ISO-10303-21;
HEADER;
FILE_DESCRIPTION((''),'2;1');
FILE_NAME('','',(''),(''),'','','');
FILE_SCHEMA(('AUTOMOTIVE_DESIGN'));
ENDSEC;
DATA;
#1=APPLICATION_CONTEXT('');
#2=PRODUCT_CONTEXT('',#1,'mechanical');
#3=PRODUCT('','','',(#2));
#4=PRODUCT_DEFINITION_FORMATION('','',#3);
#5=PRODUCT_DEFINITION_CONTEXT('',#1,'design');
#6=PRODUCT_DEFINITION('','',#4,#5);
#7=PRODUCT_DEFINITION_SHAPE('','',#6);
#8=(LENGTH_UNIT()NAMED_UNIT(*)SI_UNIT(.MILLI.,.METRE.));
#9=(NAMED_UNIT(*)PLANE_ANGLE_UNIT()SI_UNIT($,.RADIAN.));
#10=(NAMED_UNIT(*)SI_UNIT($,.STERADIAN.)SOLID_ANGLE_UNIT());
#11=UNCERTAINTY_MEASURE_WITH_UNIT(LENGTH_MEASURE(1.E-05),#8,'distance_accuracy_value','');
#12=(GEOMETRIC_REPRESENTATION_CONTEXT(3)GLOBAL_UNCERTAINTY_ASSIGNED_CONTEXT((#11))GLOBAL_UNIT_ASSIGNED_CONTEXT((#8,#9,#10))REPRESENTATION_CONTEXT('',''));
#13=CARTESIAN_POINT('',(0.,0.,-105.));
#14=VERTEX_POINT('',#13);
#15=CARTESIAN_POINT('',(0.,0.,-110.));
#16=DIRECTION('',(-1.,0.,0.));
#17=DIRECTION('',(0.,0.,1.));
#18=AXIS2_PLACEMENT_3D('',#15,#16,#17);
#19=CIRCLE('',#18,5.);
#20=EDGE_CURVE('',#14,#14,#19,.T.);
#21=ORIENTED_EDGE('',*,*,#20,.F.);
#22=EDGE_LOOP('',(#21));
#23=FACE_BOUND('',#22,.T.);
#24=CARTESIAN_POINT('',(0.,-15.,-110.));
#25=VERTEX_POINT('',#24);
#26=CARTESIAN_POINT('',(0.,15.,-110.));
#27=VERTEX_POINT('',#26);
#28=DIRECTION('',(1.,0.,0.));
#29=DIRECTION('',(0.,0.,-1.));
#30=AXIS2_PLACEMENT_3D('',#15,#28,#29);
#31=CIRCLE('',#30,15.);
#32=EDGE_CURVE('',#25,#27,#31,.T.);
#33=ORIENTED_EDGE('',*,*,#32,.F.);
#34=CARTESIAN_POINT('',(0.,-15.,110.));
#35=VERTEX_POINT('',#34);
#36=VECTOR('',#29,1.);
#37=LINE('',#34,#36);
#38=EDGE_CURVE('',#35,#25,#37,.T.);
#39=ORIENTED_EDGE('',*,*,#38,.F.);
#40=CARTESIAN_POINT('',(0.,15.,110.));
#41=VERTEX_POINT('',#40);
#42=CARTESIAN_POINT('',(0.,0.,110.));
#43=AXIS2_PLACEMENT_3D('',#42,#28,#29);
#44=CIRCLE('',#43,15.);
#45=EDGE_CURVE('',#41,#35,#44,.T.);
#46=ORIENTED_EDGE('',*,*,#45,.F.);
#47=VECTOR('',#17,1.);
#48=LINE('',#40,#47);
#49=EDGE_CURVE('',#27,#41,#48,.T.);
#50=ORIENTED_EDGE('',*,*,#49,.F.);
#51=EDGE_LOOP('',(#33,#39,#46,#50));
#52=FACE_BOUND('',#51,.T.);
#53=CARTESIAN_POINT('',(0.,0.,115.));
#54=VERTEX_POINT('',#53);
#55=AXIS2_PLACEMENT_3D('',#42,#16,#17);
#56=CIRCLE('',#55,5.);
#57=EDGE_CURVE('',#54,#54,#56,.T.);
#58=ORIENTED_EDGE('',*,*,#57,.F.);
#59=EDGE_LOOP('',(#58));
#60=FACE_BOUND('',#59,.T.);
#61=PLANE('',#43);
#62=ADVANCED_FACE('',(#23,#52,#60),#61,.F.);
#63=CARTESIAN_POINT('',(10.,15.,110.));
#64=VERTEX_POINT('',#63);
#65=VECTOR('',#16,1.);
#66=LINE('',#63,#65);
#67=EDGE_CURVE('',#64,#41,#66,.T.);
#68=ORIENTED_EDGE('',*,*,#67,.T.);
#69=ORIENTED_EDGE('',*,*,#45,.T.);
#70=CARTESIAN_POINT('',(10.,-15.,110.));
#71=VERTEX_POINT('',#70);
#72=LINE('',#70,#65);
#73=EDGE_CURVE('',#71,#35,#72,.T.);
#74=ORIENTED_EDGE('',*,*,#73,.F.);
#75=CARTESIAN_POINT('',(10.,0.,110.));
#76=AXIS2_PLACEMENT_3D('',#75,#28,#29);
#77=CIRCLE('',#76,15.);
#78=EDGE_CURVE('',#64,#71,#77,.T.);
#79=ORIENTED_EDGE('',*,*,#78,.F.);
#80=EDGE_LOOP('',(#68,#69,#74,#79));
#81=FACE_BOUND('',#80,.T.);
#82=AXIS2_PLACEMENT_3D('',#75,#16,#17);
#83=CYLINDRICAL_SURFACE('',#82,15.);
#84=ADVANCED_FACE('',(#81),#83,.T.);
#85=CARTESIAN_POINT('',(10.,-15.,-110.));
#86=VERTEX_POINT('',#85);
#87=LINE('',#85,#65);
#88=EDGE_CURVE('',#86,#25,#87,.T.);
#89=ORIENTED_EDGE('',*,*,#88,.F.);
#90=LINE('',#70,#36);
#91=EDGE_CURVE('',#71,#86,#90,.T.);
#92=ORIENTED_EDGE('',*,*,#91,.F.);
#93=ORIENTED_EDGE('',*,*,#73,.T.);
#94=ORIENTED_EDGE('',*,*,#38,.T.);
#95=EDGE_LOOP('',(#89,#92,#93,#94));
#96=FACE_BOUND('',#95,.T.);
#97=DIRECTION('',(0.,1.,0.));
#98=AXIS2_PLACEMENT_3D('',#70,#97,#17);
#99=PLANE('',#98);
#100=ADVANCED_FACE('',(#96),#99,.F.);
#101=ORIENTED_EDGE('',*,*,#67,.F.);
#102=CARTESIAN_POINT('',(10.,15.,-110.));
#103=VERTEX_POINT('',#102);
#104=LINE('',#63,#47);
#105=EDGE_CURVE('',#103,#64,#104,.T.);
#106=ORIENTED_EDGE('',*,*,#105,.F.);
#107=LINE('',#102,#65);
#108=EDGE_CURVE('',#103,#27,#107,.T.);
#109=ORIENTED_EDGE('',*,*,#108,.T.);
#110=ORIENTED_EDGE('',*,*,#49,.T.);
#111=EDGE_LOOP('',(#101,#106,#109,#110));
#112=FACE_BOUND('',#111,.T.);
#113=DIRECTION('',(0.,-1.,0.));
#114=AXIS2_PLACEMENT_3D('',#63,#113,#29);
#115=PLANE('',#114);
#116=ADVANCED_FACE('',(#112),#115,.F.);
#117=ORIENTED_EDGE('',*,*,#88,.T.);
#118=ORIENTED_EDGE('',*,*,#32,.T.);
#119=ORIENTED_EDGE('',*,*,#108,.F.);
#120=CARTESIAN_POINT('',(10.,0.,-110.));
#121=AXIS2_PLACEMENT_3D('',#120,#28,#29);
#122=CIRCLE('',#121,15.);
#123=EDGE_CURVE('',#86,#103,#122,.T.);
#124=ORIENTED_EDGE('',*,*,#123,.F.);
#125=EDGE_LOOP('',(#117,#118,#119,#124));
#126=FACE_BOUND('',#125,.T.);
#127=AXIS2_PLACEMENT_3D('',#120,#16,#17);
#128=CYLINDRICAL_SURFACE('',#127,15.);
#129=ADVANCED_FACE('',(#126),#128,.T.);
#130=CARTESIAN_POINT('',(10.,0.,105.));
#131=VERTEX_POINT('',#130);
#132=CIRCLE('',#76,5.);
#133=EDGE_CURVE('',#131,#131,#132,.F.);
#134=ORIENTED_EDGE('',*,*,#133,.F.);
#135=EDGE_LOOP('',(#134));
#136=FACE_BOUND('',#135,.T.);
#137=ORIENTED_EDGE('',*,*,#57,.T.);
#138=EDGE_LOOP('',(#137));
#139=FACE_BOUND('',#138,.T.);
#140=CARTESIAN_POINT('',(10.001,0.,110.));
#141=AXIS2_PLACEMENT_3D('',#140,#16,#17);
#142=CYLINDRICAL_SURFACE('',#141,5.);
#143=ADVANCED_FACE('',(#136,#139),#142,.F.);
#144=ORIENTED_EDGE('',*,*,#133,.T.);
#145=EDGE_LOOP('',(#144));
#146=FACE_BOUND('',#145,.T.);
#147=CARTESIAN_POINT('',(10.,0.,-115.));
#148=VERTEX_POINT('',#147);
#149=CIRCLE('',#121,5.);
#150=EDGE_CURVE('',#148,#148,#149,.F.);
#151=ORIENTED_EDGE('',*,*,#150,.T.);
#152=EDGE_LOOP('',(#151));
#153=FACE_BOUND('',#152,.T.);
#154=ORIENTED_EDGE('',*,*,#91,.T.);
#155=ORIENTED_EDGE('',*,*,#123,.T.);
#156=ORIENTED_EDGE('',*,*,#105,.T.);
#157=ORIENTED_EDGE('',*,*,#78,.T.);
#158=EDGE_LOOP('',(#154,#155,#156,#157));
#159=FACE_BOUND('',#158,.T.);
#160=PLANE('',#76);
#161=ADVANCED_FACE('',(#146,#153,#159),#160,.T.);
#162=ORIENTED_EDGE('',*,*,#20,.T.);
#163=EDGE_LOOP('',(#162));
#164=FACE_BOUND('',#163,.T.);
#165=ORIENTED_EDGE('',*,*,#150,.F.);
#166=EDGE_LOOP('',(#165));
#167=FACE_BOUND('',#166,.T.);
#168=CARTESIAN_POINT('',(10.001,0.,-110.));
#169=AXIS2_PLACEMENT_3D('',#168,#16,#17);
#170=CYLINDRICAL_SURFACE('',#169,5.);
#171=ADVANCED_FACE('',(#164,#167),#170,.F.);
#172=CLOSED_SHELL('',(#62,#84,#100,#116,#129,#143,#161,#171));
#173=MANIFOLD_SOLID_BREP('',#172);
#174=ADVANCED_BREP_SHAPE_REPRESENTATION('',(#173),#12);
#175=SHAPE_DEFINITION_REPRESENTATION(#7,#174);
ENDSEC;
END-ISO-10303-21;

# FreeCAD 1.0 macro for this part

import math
import FreeCAD as App
import Part
import Sketcher
from FreeCAD import Vector

doc = App.newDocument("Part")
body = doc.addObject("PartDesign::Body", "Body")

# Sketch on YZ plane
sketch1 = doc.addObject("Sketcher::SketchObject", "Sketch")
body.addObject(sketch1)
sketch1.AttachmentSupport = (doc.YZ_Plane, [""])
sketch1.MapMode = "FlatFace"
sketch1.addGeometry([
    Part.LineSegment(Vector(15, -110, 0), Vector(15, 110, 0)),
    Part.ArcOfCircle(Part.Circle(Vector(0, 110, 0), Vector(0, 0, 1), 15), math.radians(0), math.radians(180)),
    Part.LineSegment(Vector(-15, 110, 0), Vector(-15, -110, 0)),
    Part.ArcOfCircle(Part.Circle(Vector(0, -110, 0), Vector(0, 0, 1), 15), math.radians(180), math.radians(360)),
], False)
sketch1.addConstraint([
    Sketcher.Constraint("Tangent", 0, 2, 1, 1),
    Sketcher.Constraint("Tangent", 1, 2, 2, 1),
    Sketcher.Constraint("Tangent", 2, 2, 3, 1),
    Sketcher.Constraint("Tangent", 3, 2, 0, 1),
    Sketcher.Constraint("Vertical", 0),
    Sketcher.Constraint("Vertical", 2),
    Sketcher.Constraint("Symmetric", 1, 3, 3, 3, -1, 1),
    Sketcher.Constraint("Radius", 1, 15.0),
    Sketcher.Constraint("DistanceY", 0, 1, 0, 2, 220.0),
])
pad1 = doc.addObject("PartDesign::Pad", "Pad")
body.addObject(pad1)
pad1.Profile = sketch1
pad1.Length = 10

# Sketch on YZ plane
sketch2 = doc.addObject("Sketcher::SketchObject", "Sketch001")
body.addObject(sketch2)
sketch2.AttachmentSupport = (doc.YZ_Plane, [""])
sketch2.MapMode = "FlatFace"
sketch2.addGeometry(Part.Circle(Vector(0, 110, 0), Vector(0, 0, 1), 5), False)
sketch2.addConstraint([
    Sketcher.Constraint("PointOnObject", 0, 3, -2),
    Sketcher.Constraint("Diameter", 0, 10.0),
    Sketcher.Constraint("DistanceY", -1, 1, 0, 3, 110.0),
])
pocket1 = doc.addObject("PartDesign::Pocket", "Pocket")
body.addObject(pocket1)
pocket1.Profile = sketch2
pocket1.Type = "UpToFirst"
pocket1.Reversed = True

# Sketch on YZ plane
sketch3 = doc.addObject("Sketcher::SketchObject", "Sketch002")
body.addObject(sketch3)
sketch3.AttachmentSupport = (doc.YZ_Plane, [""])
sketch3.MapMode = "FlatFace"
sketch3.addGeometry(Part.Circle(Vector(0, -110, 0), Vector(0, 0, 1), 5), False)
sketch3.addConstraint([
    Sketcher.Constraint("PointOnObject", 0, 3, -2),
    Sketcher.Constraint("Diameter", 0, 10.0),
    Sketcher.Constraint("DistanceY", 0, 3, -1, 1, 110.0),
])
pocket2 = doc.addObject("PartDesign::Pocket", "Pocket001")
body.addObject(pocket2)
pocket2.Profile = sketch3
pocket2.Type = "UpToFirst"
pocket2.Reversed = True

doc.recompute()
